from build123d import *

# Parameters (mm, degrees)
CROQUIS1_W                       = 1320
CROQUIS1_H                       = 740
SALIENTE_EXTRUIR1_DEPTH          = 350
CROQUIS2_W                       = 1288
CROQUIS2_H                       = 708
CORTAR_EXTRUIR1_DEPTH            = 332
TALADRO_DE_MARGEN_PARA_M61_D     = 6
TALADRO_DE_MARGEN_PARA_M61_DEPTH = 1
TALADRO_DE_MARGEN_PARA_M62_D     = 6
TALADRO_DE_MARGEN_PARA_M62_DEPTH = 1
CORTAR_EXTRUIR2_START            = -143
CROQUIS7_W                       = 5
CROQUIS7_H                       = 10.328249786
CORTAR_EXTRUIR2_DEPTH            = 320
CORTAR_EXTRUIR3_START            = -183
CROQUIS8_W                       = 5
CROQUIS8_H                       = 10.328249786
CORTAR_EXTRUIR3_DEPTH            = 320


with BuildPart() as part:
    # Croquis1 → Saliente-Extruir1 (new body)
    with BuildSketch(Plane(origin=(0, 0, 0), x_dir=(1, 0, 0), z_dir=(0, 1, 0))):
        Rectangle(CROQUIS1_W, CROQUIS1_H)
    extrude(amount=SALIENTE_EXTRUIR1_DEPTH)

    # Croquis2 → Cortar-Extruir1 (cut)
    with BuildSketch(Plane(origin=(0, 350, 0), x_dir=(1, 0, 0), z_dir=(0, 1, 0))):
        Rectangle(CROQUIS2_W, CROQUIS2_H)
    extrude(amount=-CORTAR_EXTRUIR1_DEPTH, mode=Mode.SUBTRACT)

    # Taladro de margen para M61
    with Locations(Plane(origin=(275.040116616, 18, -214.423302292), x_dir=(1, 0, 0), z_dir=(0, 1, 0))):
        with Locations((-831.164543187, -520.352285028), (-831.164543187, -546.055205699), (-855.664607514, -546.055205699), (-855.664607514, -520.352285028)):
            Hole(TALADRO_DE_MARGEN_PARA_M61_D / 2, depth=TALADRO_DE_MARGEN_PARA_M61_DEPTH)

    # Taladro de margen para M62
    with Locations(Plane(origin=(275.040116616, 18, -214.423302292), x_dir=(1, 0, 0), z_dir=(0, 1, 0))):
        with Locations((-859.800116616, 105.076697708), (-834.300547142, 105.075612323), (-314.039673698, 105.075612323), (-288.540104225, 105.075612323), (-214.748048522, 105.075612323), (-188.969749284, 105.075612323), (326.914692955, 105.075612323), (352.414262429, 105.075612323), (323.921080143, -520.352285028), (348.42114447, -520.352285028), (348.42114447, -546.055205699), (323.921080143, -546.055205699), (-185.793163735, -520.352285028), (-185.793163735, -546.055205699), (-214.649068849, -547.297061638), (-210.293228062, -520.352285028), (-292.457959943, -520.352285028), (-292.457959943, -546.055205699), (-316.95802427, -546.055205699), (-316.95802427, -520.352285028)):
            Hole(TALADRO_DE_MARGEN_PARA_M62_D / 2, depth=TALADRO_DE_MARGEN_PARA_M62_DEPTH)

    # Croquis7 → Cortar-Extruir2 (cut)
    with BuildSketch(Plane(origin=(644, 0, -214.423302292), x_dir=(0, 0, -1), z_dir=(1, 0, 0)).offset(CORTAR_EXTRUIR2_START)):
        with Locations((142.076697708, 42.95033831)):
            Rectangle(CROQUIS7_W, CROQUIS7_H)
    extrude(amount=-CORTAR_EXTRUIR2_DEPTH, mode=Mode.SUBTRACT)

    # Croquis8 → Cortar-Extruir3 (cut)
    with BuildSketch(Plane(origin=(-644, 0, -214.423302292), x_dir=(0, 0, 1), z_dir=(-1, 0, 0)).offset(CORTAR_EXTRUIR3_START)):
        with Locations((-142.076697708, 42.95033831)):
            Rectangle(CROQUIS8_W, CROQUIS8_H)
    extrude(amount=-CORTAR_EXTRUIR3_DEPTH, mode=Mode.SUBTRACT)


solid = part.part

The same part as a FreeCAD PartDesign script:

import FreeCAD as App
import Part
import Sketcher
from FreeCAD import Vector
Q = App.Units.Quantity


def add_polygon(sketch, points):
    """Adds a closed chain of lines whose ends are joined by coincident constraints."""
    first, n = sketch.GeometryCount, len(points)
    for a, b in zip(points, points[1:] + points[:1]):
        sketch.addGeometry(Part.LineSegment(App.Vector(*a, 0), App.Vector(*b, 0)), False)
    for i in range(n):
        sketch.addConstraint(Sketcher.Constraint("Coincident", first + i, 2, first + (i + 1) % n, 1))

doc = App.newDocument("Part")
body = doc.addObject("PartDesign::Body", "Body")

sketch1 = body.newObject("Sketcher::SketchObject", "Sketch")
sketch1.AttachmentSupport = (doc.getObject("XZ_Plane"), [""])
sketch1.MapMode = "FlatFace"
add_polygon(sketch1, [(-660, -370), (-660, 370), (660, 370), (660, -370)])
sketch1.addConstraint(Sketcher.Constraint("Vertical", 0))
sketch1.addConstraint(Sketcher.Constraint("Horizontal", 1))
sketch1.addConstraint(Sketcher.Constraint("Vertical", 2))
sketch1.addConstraint(Sketcher.Constraint("Horizontal", 3))
sketch1.addConstraint(Sketcher.Constraint("Symmetric", 0, 2, 2, 2, -1, 1))
sketch1.addConstraint(Sketcher.Constraint("DistanceX", 1, 1, 1, 2, Q("1320 mm")))
sketch1.addConstraint(Sketcher.Constraint("DistanceY", 0, 1, 0, 2, Q("740 mm")))
pad1 = body.newObject("PartDesign::Pad", "Pad")
pad1.Profile = sketch1
pad1.Length = 350
pad1.Reversed = True

sketch2 = body.newObject("Sketcher::SketchObject", "Sketch001")
sketch2.AttachmentSupport = (doc.getObject("XZ_Plane"), [""])
sketch2.MapMode = "FlatFace"
sketch2.AttachmentOffset = App.Placement(Vector(0, 0, -350), App.Rotation())
add_polygon(sketch2, [(-644, -354), (-644, 354), (644, 354), (644, -354)])
sketch2.addConstraint(Sketcher.Constraint("Vertical", 0))
sketch2.addConstraint(Sketcher.Constraint("Horizontal", 1))
sketch2.addConstraint(Sketcher.Constraint("Vertical", 2))
sketch2.addConstraint(Sketcher.Constraint("Horizontal", 3))
sketch2.addConstraint(Sketcher.Constraint("Symmetric", 0, 2, 2, 2, -1, 1))
sketch2.addConstraint(Sketcher.Constraint("DistanceX", 1, 1, 1, 2, Q("1288 mm")))
sketch2.addConstraint(Sketcher.Constraint("DistanceY", 0, 1, 0, 2, Q("708 mm")))
pocket1 = body.newObject("PartDesign::Pocket", "Pocket")
pocket1.Profile = sketch2
pocket1.Length = 332
pocket1.Reversed = True

sketch3 = body.newObject("Sketcher::SketchObject", "Sketch002")
sketch3.AttachmentSupport = (doc.getObject("XZ_Plane"), [""])
sketch3.MapMode = "FlatFace"
sketch3.AttachmentOffset = App.Placement(Vector(0, 0, -18), App.Rotation())
sketch3.addGeometry(Part.Circle(Vector(-556.1, 305.9, 0), Vector(0, 0, 1), 3), False)
sketch3.addGeometry(Part.Circle(Vector(-556.1, 331.6, 0), Vector(0, 0, 1), 3), False)
sketch3.addGeometry(Part.Circle(Vector(-580.6, 331.6, 0), Vector(0, 0, 1), 3), False)
sketch3.addGeometry(Part.Circle(Vector(-580.6, 305.9, 0), Vector(0, 0, 1), 3), False)
sketch3.addConstraint(Sketcher.Constraint("Equal", 0, 1))
sketch3.addConstraint(Sketcher.Constraint("Equal", 1, 2))
sketch3.addConstraint(Sketcher.Constraint("Equal", 2, 3))
sketch3.addConstraint(Sketcher.Constraint("Horizontal", 1, 3, 2, 3))
sketch3.addConstraint(Sketcher.Constraint("Horizontal", 0, 3, 3, 3))
sketch3.addConstraint(Sketcher.Constraint("Vertical", 0, 3, 1, 3))
sketch3.addConstraint(Sketcher.Constraint("Vertical", 2, 3, 3, 3))
sketch3.addConstraint(Sketcher.Constraint("Diameter", 0, Q("6 mm")))
sketch3.addConstraint(Sketcher.Constraint("DistanceX", 2, 3, -1, 1, Q("580.624491 mm")))
sketch3.addConstraint(Sketcher.Constraint("DistanceY", 0, 3, 1, 3, Q("25.702921 mm")))
sketch3.addConstraint(Sketcher.Constraint("DistanceX", 0, 3, -1, 1, Q("556.124427 mm")))
sketch3.addConstraint(Sketcher.Constraint("DistanceY", -1, 1, 0, 3, Q("305.928983 mm")))
doc.recompute()
hole = body.newObject("PartDesign::Hole", "Hole")
hole.Profile = sketch3
hole.ThreadType = "None"
hole.Diameter = 6
hole.DepthType = "Dimension"
hole.Depth = 1
hole.DrillPoint = "Flat"
hole.Reversed = True

sketch4 = body.newObject("Sketcher::SketchObject", "Sketch003")
sketch4.AttachmentSupport = (doc.getObject("XZ_Plane"), [""])
sketch4.MapMode = "FlatFace"
sketch4.AttachmentOffset = App.Placement(Vector(0, 0, -18), App.Rotation())
sketch4.addGeometry(Part.Circle(Vector(-584.8, -319.5, 0), Vector(0, 0, 1), 3), False)
sketch4.addGeometry(Part.Circle(Vector(-559.3, -319.5, 0), Vector(0, 0, 1), 3), False)
sketch4.addGeometry(Part.Circle(Vector(-39, -319.5, 0), Vector(0, 0, 1), 3), False)
sketch4.addGeometry(Part.Circle(Vector(-13.5, -319.5, 0), Vector(0, 0, 1), 3), False)
sketch4.addGeometry(Part.Circle(Vector(60.3, -319.5, 0), Vector(0, 0, 1), 3), False)
sketch4.addGeometry(Part.Circle(Vector(86.1, -319.5, 0), Vector(0, 0, 1), 3), False)
sketch4.addGeometry(Part.Circle(Vector(602, -319.5, 0), Vector(0, 0, 1), 3), False)
sketch4.addGeometry(Part.Circle(Vector(627.5, -319.5, 0), Vector(0, 0, 1), 3), False)
sketch4.addGeometry(Part.Circle(Vector(599, 305.9, 0), Vector(0, 0, 1), 3), False)
sketch4.addGeometry(Part.Circle(Vector(623.5, 305.9, 0), Vector(0, 0, 1), 3), False)
sketch4.addGeometry(Part.Circle(Vector(623.5, 331.6, 0), Vector(0, 0, 1), 3), False)
sketch4.addGeometry(Part.Circle(Vector(599, 331.6, 0), Vector(0, 0, 1), 3), False)
sketch4.addGeometry(Part.Circle(Vector(89.2, 305.9, 0), Vector(0, 0, 1), 3), False)
sketch4.addGeometry(Part.Circle(Vector(89.2, 331.6, 0), Vector(0, 0, 1), 3), False)
sketch4.addGeometry(Part.Circle(Vector(60.4, 332.9, 0), Vector(0, 0, 1), 3), False)
sketch4.addGeometry(Part.Circle(Vector(64.7, 305.9, 0), Vector(0, 0, 1), 3), False)
sketch4.addGeometry(Part.Circle(Vector(-17.4, 305.9, 0), Vector(0, 0, 1), 3), False)
sketch4.addGeometry(Part.Circle(Vector(-17.4, 331.6, 0), Vector(0, 0, 1), 3), False)
sketch4.addGeometry(Part.Circle(Vector(-41.9, 331.6, 0), Vector(0, 0, 1), 3), False)
sketch4.addGeometry(Part.Circle(Vector(-41.9, 305.9, 0), Vector(0, 0, 1), 3), False)
sketch4.addConstraint(Sketcher.Constraint("Equal", 0, 1))
sketch4.addConstraint(Sketcher.Constraint("Equal", 1, 2))
sketch4.addConstraint(Sketcher.Constraint("Equal", 2, 3))
sketch4.addConstraint(Sketcher.Constraint("Equal", 3, 4))
sketch4.addConstraint(Sketcher.Constraint("Equal", 4, 5))
sketch4.addConstraint(Sketcher.Constraint("Equal", 5, 6))
sketch4.addConstraint(Sketcher.Constraint("Equal", 6, 7))
sketch4.addConstraint(Sketcher.Constraint("Equal", 7, 8))
sketch4.addConstraint(Sketcher.Constraint("Equal", 8, 9))
sketch4.addConstraint(Sketcher.Constraint("Equal", 9, 10))
sketch4.addConstraint(Sketcher.Constraint("Equal", 10, 11))
sketch4.addConstraint(Sketcher.Constraint("Equal", 11, 12))
sketch4.addConstraint(Sketcher.Constraint("Equal", 12, 13))
sketch4.addConstraint(Sketcher.Constraint("Equal", 13, 14))
sketch4.addConstraint(Sketcher.Constraint("Equal", 14, 15))
sketch4.addConstraint(Sketcher.Constraint("Equal", 15, 16))
sketch4.addConstraint(Sketcher.Constraint("Equal", 16, 17))
sketch4.addConstraint(Sketcher.Constraint("Equal", 17, 18))
sketch4.addConstraint(Sketcher.Constraint("Equal", 18, 19))
sketch4.addConstraint(Sketcher.Constraint("Horizontal", 1, 3, 2, 3))
sketch4.addConstraint(Sketcher.Constraint("Horizontal", 2, 3, 3, 3))
sketch4.addConstraint(Sketcher.Constraint("Horizontal", 3, 3, 4, 3))
sketch4.addConstraint(Sketcher.Constraint("Horizontal", 4, 3, 5, 3))
sketch4.addConstraint(Sketcher.Constraint("Horizontal", 5, 3, 6, 3))
sketch4.addConstraint(Sketcher.Constraint("Horizontal", 6, 3, 7, 3))
sketch4.addConstraint(Sketcher.Constraint("Horizontal", 8, 3, 9, 3))
sketch4.addConstraint(Sketcher.Constraint("Horizontal", 10, 3, 11, 3))
sketch4.addConstraint(Sketcher.Constraint("Horizontal", 9, 3, 12, 3))
sketch4.addConstraint(Sketcher.Constraint("Horizontal", 11, 3, 13, 3))
sketch4.addConstraint(Sketcher.Constraint("Horizontal", 12, 3, 15, 3))
sketch4.addConstraint(Sketcher.Constraint("Horizontal", 15, 3, 16, 3))
sketch4.addConstraint(Sketcher.Constraint("Horizontal", 13, 3, 17, 3))
sketch4.addConstraint(Sketcher.Constraint("Horizontal", 17, 3, 18, 3))
sketch4.addConstraint(Sketcher.Constraint("Horizontal", 16, 3, 19, 3))
sketch4.addConstraint(Sketcher.Constraint("Vertical", 9, 3, 10, 3))
sketch4.addConstraint(Sketcher.Constraint("Vertical", 8, 3, 11, 3))
sketch4.addConstraint(Sketcher.Constraint("Vertical", 12, 3, 13, 3))
sketch4.addConstraint(Sketcher.Constraint("Vertical", 16, 3, 17, 3))
sketch4.addConstraint(Sketcher.Constraint("Vertical", 18, 3, 19, 3))
sketch4.addConstraint(Sketcher.Constraint("Diameter", 0, Q("6 mm")))
sketch4.addConstraint(Sketcher.Constraint("DistanceY", 0, 3, -1, 1, Q("319.5 mm")))
sketch4.addConstraint(Sketcher.Constraint("DistanceX", 0, 3, -1, 1, Q("584.76 mm")))
sketch4.addConstraint(Sketcher.Constraint("DistanceX", 1, 3, 4, 3, Q("619.552499 mm")))
sketch4.addConstraint(Sketcher.Constraint("DistanceX", 4, 3, 5, 3, Q("25.778299 mm")))
sketch4.addConstraint(Sketcher.Constraint("DistanceX", 1, 3, -1, 1, Q("559.260431 mm")))
sketch4.addConstraint(Sketcher.Constraint("DistanceX", -1, 1, 6, 3, Q("601.95481 mm")))
sketch4.addConstraint(Sketcher.Constraint("DistanceX", -1, 1, 7, 3, Q("627.454379 mm")))
sketch4.addConstraint(Sketcher.Constraint("DistanceX", -1, 1, 9, 3, Q("623.461261 mm")))
sketch4.addConstraint(Sketcher.Constraint("DistanceY", -1, 1, 14, 3, Q("332.873759 mm")))
sketch4.addConstraint(Sketcher.Constraint("DistanceX", -1, 1, 15, 3, Q("64.746889 mm")))
sketch4.addConstraint(Sketcher.Constraint("DistanceX", 2, 3, 3, 3, Q("25.499569 mm")))
sketch4.addConstraint(Sketcher.Constraint("DistanceX", 5, 3, 8, 3, Q("512.890829 mm")))
sketch4.addConstraint(Sketcher.Constraint("DistanceY", 9, 3, 10, 3, Q("25.702921 mm")))
sketch4.addConstraint(Sketcher.Constraint("DistanceY", 7, 3, 10, 3, Q("651.130818 mm")))
sketch4.addConstraint(Sketcher.Constraint("DistanceX", 12, 3, 9, 3, Q("534.214308 mm")))
sketch4.addConstraint(Sketcher.Constraint("DistanceX", 14, 3, 11, 3, Q("538.570149 mm")))
sketch4.addConstraint(Sketcher.Constraint("DistanceX", 16, 3, 15, 3, Q("82.164732 mm")))
sketch4.addConstraint(Sketcher.Constraint("DistanceX", 18, 3, 13, 3, Q("131.164861 mm")))
sketch4.addConstraint(Sketcher.Constraint("DistanceY", 1, 3, -1, 1, Q("319.498915 mm")))
sketch4.addConstraint(Sketcher.Constraint("DistanceX", 2, 3, -1, 1, Q("38.999557 mm")))
doc.recompute()
hole2 = body.newObject("PartDesign::Hole", "Hole001")
hole2.Profile = sketch4
hole2.ThreadType = "None"
hole2.Diameter = 6
hole2.DepthType = "Dimension"
hole2.Depth = 1
hole2.DrillPoint = "Flat"
hole2.Reversed = True

sketch5 = body.newObject("Sketcher::SketchObject", "Sketch004")
sketch5.AttachmentSupport = (doc.getObject("YZ_Plane"), [""])
sketch5.MapMode = "FlatFace"
sketch5.AttachmentOffset = App.Placement(Vector(0, 0, 501), App.Rotation())
add_polygon(sketch5, [(48, -354), (38, -354), (38, -359), (48, -359)])
sketch5.addConstraint(Sketcher.Constraint("Horizontal", 0))
sketch5.addConstraint(Sketcher.Constraint("Vertical", 1))
sketch5.addConstraint(Sketcher.Constraint("Horizontal", 2))
sketch5.addConstraint(Sketcher.Constraint("Vertical", 3))
sketch5.addConstraint(Sketcher.Constraint("DistanceY", 1, 2, 1, 1, Q("5 mm")))
sketch5.addConstraint(Sketcher.Constraint("DistanceY", 0, 2, -1, 1, Q("354 mm")))
sketch5.addConstraint(Sketcher.Constraint("DistanceX", 0, 2, 0, 1, Q("10.32825 mm")))
sketch5.addConstraint(Sketcher.Constraint("DistanceX", -1, 1, 0, 2, Q("37.786213 mm")))
pocket2 = body.newObject("PartDesign::Pocket", "Pocket001")
pocket2.Profile = sketch5
pocket2.Length = 320

sketch6 = body.newObject("Sketcher::SketchObject", "Sketch005")
sketch6.AttachmentSupport = (doc.getObject("YZ_Plane"), [""])
sketch6.MapMode = "FlatFace"
sketch6.AttachmentOffset = App.Placement(Vector(0, 0, -461), App.Rotation())
add_polygon(sketch6, [(48, -359), (38, -359), (38, -354), (48, -354)])
sketch6.addConstraint(Sketcher.Constraint("Horizontal", 0))
sketch6.addConstraint(Sketcher.Constraint("Vertical", 1))
sketch6.addConstraint(Sketcher.Constraint("Horizontal", 2))
sketch6.addConstraint(Sketcher.Constraint("Vertical", 3))
sketch6.addConstraint(Sketcher.Constraint("DistanceY", 1, 1, 1, 2, Q("5 mm")))
sketch6.addConstraint(Sketcher.Constraint("DistanceY", 0, 2, -1, 1, Q("359 mm")))
sketch6.addConstraint(Sketcher.Constraint("DistanceX", 0, 2, 0, 1, Q("10.32825 mm")))
sketch6.addConstraint(Sketcher.Constraint("DistanceX", -1, 1, 0, 2, Q("37.786213 mm")))
pocket3 = body.newObject("PartDesign::Pocket", "Pocket002")
pocket3.Profile = sketch6
pocket3.Length = 320
pocket3.Reversed = True

doc.recompute()
